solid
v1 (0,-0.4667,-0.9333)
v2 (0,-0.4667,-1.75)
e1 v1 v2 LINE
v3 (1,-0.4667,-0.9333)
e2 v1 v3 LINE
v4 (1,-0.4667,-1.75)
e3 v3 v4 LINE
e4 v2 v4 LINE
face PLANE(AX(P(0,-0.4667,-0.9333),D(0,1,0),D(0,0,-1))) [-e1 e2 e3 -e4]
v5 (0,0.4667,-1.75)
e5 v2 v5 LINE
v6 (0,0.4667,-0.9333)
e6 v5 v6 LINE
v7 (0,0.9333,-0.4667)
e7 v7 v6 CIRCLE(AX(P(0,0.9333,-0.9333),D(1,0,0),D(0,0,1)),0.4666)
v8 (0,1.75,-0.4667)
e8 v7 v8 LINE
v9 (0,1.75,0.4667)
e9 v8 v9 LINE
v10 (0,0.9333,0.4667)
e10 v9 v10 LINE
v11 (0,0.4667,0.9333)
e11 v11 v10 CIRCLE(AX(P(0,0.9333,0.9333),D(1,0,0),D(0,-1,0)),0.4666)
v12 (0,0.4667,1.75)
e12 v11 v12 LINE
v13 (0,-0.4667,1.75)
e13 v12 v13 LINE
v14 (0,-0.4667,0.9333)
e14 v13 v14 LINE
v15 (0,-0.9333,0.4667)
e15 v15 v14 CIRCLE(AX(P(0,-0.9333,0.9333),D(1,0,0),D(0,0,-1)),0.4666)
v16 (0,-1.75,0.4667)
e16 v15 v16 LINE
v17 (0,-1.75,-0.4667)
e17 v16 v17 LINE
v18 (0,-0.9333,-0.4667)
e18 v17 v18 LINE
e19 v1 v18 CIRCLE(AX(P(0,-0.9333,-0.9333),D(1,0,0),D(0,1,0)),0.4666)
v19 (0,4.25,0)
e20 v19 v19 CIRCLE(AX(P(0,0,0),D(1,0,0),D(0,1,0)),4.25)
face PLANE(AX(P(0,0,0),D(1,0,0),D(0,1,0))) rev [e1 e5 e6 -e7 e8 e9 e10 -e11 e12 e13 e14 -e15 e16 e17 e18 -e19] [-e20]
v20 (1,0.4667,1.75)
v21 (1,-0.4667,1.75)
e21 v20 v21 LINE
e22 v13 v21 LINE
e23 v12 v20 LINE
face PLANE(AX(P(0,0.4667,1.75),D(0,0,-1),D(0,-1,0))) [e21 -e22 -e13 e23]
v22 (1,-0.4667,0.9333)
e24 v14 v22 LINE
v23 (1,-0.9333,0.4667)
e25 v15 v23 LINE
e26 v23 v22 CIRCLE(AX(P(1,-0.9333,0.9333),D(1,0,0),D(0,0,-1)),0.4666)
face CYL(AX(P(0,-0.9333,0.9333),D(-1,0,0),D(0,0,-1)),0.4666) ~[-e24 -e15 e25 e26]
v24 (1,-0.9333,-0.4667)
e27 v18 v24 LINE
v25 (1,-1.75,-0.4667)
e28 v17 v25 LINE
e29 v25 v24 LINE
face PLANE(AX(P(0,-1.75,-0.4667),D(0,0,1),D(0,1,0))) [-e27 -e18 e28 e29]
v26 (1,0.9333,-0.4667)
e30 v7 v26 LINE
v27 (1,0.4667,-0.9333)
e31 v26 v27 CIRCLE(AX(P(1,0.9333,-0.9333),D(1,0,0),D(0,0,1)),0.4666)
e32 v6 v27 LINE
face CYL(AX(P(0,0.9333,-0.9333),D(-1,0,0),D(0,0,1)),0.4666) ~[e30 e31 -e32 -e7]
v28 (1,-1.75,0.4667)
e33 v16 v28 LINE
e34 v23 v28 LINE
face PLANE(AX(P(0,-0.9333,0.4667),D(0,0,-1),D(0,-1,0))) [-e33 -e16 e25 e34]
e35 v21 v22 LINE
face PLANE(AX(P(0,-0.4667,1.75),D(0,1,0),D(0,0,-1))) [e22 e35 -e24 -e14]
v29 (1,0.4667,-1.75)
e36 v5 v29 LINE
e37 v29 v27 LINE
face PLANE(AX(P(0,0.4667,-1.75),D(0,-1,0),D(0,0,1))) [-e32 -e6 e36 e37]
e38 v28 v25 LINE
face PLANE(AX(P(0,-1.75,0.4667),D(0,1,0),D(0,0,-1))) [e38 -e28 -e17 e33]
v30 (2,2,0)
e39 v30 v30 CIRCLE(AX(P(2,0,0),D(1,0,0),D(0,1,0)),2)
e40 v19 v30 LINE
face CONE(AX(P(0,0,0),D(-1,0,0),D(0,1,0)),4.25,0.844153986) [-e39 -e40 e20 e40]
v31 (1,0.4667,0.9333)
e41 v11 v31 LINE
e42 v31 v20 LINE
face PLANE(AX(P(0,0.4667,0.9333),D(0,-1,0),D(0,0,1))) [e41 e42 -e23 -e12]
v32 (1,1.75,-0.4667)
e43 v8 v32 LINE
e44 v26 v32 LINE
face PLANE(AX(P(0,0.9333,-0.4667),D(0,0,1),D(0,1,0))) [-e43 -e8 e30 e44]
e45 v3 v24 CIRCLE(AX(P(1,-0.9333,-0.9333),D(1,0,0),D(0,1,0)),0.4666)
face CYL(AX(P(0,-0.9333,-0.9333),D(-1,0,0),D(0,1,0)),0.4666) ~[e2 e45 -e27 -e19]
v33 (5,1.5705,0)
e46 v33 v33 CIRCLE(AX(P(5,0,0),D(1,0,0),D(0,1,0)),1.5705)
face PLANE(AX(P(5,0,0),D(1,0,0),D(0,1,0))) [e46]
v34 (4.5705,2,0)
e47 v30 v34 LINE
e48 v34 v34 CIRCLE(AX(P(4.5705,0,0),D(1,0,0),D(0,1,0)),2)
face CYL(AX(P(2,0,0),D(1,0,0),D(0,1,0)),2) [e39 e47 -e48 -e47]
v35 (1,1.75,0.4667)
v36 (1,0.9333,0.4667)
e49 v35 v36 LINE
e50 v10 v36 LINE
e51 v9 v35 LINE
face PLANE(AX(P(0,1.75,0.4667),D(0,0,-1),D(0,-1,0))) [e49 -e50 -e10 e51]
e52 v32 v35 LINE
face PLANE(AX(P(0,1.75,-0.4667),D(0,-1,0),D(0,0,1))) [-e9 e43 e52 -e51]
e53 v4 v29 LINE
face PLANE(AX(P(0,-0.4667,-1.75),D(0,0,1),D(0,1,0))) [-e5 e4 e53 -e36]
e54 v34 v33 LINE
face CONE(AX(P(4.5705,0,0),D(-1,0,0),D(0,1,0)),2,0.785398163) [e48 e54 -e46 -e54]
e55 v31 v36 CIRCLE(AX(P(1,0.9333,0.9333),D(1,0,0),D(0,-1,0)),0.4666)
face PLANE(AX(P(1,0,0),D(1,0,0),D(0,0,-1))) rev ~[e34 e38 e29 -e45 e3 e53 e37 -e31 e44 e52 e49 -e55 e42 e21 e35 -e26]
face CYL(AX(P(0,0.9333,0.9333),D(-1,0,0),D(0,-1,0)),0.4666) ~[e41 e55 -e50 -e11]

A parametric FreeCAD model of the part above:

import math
import FreeCAD as App
import Part
import Sketcher
Q = App.Units.Quantity


def add_polygon(sketch, points):
    """Adds a closed chain of lines whose ends are joined by coincident constraints."""
    first, n = sketch.GeometryCount, len(points)
    for a, b in zip(points, points[1:] + points[:1]):
        sketch.addGeometry(Part.LineSegment(App.Vector(*a, 0), App.Vector(*b, 0)), False)
    for i in range(n):
        sketch.addConstraint(Sketcher.Constraint("Coincident", first + i, 2, first + (i + 1) % n, 1))

doc = App.newDocument("Part")
body = doc.addObject("PartDesign::Body", "Body")

# Sketch on XY plane
sketch1 = body.newObject("Sketcher::SketchObject", "Sketch")
sketch1.AttachmentSupport = (doc.getObject("XY_Plane"), [""])
sketch1.MapMode = "FlatFace"
add_polygon(sketch1, [(0, 0), (5, 0), (5, 1.6), (4.6, 2), (2, 2), (0, 4.2)])  # lines 0-5
sketch1.addConstraint(Sketcher.Constraint("Horizontal", 0))
sketch1.addConstraint(Sketcher.Constraint("Vertical", 1))
sketch1.addConstraint(Sketcher.Constraint("Horizontal", 3))
sketch1.addConstraint(Sketcher.Constraint("Vertical", 5))
sketch1.addConstraint(Sketcher.Constraint("Coincident", 5, 2, -1, 1))
sketch1.addConstraint(Sketcher.Constraint("DistanceX", 0, 1, 0, 2, Q("5 mm")))
sketch1.addConstraint(Sketcher.Constraint("Angle", 2, Q("135 deg")))
sketch1.addConstraint(Sketcher.Constraint("DistanceY", -1, 1, 2, 2, Q("2 mm")))
sketch1.addConstraint(Sketcher.Constraint("DistanceX", -1, 1, 3, 2, Q("2 mm")))
sketch1.addConstraint(Sketcher.Constraint("DistanceY", 5, 2, 5, 1, Q("4.25 mm")))
sketch1.addConstraint(Sketcher.Constraint("DistanceX", 3, 2, 3, 1, Q("2.5705 mm")))
revolution = body.newObject("PartDesign::Revolution", "Revolution")
revolution.Profile = sketch1
revolution.ReferenceAxis = (sketch1, ["H_Axis"])
revolution.Angle = 360

# Sketch on YZ plane
sketch2 = body.newObject("Sketcher::SketchObject", "Sketch001")
sketch2.AttachmentSupport = (doc.getObject("YZ_Plane"), [""])
sketch2.MapMode = "FlatFace"
sketch2.addGeometry(Part.LineSegment(App.Vector(0.47, 0.93, 0), App.Vector(0.47, 1.75, 0)), False)
sketch2.addGeometry(Part.LineSegment(App.Vector(0.47, 1.75, 0), App.Vector(-0.47, 1.75, 0)), False)
sketch2.addGeometry(Part.LineSegment(App.Vector(-0.47, 1.75, 0), App.Vector(-0.47, 0.93, 0)), False)
sketch2.addGeometry(Part.ArcOfCircle(Part.Circle(App.Vector(-0.93, 0.93, 0), App.Vector(0, 0, 1), 0.47), math.radians(-90), math.radians(0)), False)
sketch2.addGeometry(Part.LineSegment(App.Vector(-0.93, 0.47, 0), App.Vector(-1.75, 0.47, 0)), False)
sketch2.addGeometry(Part.LineSegment(App.Vector(-1.75, 0.47, 0), App.Vector(-1.75, -0.47, 0)), False)
sketch2.addGeometry(Part.LineSegment(App.Vector(-1.75, -0.47, 0), App.Vector(-0.93, -0.47, 0)), False)
sketch2.addGeometry(Part.ArcOfCircle(Part.Circle(App.Vector(-0.93, -0.93, 0), App.Vector(0, 0, 1), 0.47), math.radians(0), math.radians(90)), False)
sketch2.addGeometry(Part.LineSegment(App.Vector(-0.47, -0.93, 0), App.Vector(-0.47, -1.75, 0)), False)
sketch2.addGeometry(Part.LineSegment(App.Vector(-0.47, -1.75, 0), App.Vector(0.47, -1.75, 0)), False)
sketch2.addGeometry(Part.LineSegment(App.Vector(0.47, -1.75, 0), App.Vector(0.47, -0.93, 0)), False)
sketch2.addGeometry(Part.ArcOfCircle(Part.Circle(App.Vector(0.93, -0.93, 0), App.Vector(0, 0, 1), 0.47), math.radians(90), math.radians(180)), False)
sketch2.addGeometry(Part.LineSegment(App.Vector(0.93, -0.47, 0), App.Vector(1.75, -0.47, 0)), False)
sketch2.addGeometry(Part.LineSegment(App.Vector(1.75, -0.47, 0), App.Vector(1.75, 0.47, 0)), False)
sketch2.addGeometry(Part.LineSegment(App.Vector(1.75, 0.47, 0), App.Vector(0.93, 0.47, 0)), False)
sketch2.addGeometry(Part.ArcOfCircle(Part.Circle(App.Vector(0.93, 0.93, 0), App.Vector(0, 0, 1), 0.47), math.radians(180), math.radians(270)), False)
sketch2.addConstraint(Sketcher.Constraint("Coincident", 0, 2, 1, 1))
sketch2.addConstraint(Sketcher.Constraint("Coincident", 1, 2, 2, 1))
sketch2.addConstraint(Sketcher.Constraint("Tangent", 2, 2, 3, 2))
sketch2.addConstraint(Sketcher.Constraint("Tangent", 3, 1, 4, 1))
sketch2.addConstraint(Sketcher.Constraint("Coincident", 4, 2, 5, 1))
sketch2.addConstraint(Sketcher.Constraint("Coincident", 5, 2, 6, 1))
sketch2.addConstraint(Sketcher.Constraint("Tangent", 6, 2, 7, 2))
sketch2.addConstraint(Sketcher.Constraint("Tangent", 7, 1, 8, 1))
sketch2.addConstraint(Sketcher.Constraint("Coincident", 8, 2, 9, 1))
sketch2.addConstraint(Sketcher.Constraint("Coincident", 9, 2, 10, 1))
sketch2.addConstraint(Sketcher.Constraint("Tangent", 10, 2, 11, 2))
sketch2.addConstraint(Sketcher.Constraint("Tangent", 11, 1, 12, 1))
sketch2.addConstraint(Sketcher.Constraint("Coincident", 12, 2, 13, 1))
sketch2.addConstraint(Sketcher.Constraint("Coincident", 13, 2, 14, 1))
sketch2.addConstraint(Sketcher.Constraint("Tangent", 14, 2, 15, 2))
sketch2.addConstraint(Sketcher.Constraint("Tangent", 15, 1, 0, 1))
sketch2.addConstraint(Sketcher.Constraint("Vertical", 0))
sketch2.addConstraint(Sketcher.Constraint("Horizontal", 1))
sketch2.addConstraint(Sketcher.Constraint("Vertical", 2))
sketch2.addConstraint(Sketcher.Constraint("Horizontal", 4))
sketch2.addConstraint(Sketcher.Constraint("Vertical", 5))
sketch2.addConstraint(Sketcher.Constraint("Horizontal", 6))
sketch2.addConstraint(Sketcher.Constraint("Vertical", 8))
sketch2.addConstraint(Sketcher.Constraint("Horizontal", 9))
sketch2.addConstraint(Sketcher.Constraint("Vertical", 10))
sketch2.addConstraint(Sketcher.Constraint("Horizontal", 12))
sketch2.addConstraint(Sketcher.Constraint("Vertical", 13))
sketch2.addConstraint(Sketcher.Constraint("Horizontal", 14))
sketch2.addConstraint(Sketcher.Constraint("Equal", 3, 7))
sketch2.addConstraint(Sketcher.Constraint("Equal", 7, 11))
sketch2.addConstraint(Sketcher.Constraint("Equal", 11, 15))
sketch2.addConstraint(Sketcher.Constraint("Symmetric", 3, 3, 11, 3, -1, 1))
sketch2.addConstraint(Sketcher.Constraint("Symmetric", 7, 3, 15, 3, -1, 1))
sketch2.addConstraint(Sketcher.Constraint("Symmetric", 7, 3, 11, 3, -2))
sketch2.addConstraint(Sketcher.Constraint("Equal", 6, 12))
sketch2.addConstraint(Sketcher.Constraint("Equal", 14, 0))
sketch2.addConstraint(Sketcher.Constraint("Equal", 9, 5))
sketch2.addConstraint(Sketcher.Constraint("Equal", 2, 8))
sketch2.addConstraint(Sketcher.Constraint("Radius", 3, Q("0.4666 mm")))
sketch2.addConstraint(Sketcher.Constraint("DistanceX", 3, 3, 0, 2, Q("1.4 mm")))
sketch2.addConstraint(Sketcher.Constraint("DistanceY", -1, 1, 0, 2, Q("1.75 mm")))
pocket1 = body.newObject("PartDesign::Pocket", "Pocket")
pocket1.Profile = sketch2
pocket1.Length = 1
pocket1.Reversed = True

doc.recompute()
